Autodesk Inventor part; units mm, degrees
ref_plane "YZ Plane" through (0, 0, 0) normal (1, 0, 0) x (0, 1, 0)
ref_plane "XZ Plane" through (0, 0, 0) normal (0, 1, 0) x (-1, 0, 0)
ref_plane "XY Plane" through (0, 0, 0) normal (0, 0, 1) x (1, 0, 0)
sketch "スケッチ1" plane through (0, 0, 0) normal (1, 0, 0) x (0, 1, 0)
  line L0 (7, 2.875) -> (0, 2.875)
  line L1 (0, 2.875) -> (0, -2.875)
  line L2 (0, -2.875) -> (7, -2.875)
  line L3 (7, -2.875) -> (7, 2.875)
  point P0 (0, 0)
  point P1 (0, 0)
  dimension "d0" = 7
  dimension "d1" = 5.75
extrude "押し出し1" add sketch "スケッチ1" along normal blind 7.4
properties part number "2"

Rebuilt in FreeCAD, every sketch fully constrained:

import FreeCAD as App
import Part
import Sketcher
from FreeCAD import Vector


def add_polygon(sketch, points):
    """Adds a closed chain of lines whose ends are joined by coincident constraints."""
    first, n = sketch.GeometryCount, len(points)
    for a, b in zip(points, points[1:] + points[:1]):
        sketch.addGeometry(Part.LineSegment(App.Vector(*a, 0), App.Vector(*b, 0)), False)
    for i in range(n):
        sketch.addConstraint(Sketcher.Constraint("Coincident", first + i, 2, first + (i + 1) % n, 1))

doc = App.newDocument("Part")
body = doc.addObject("PartDesign::Body", "Body")

# Sketch on YZ plane
sketch1 = body.newObject("Sketcher::SketchObject", "Sketch")
sketch1.AttachmentSupport = (doc.getObject("YZ_Plane"), [""])
sketch1.MapMode = "FlatFace"
add_polygon(sketch1, [(7, -3), (7, 3), (0, 3), (0, -3)])  # lines 0-3
sketch1.addConstraint([
    Sketcher.Constraint("Vertical", 0),
    Sketcher.Constraint("Horizontal", 1),
    Sketcher.Constraint("Vertical", 2),
    Sketcher.Constraint("Horizontal", 3),
    Sketcher.Constraint("Symmetric", 1, 2, 2, 2, -1, 1),
    Sketcher.Constraint("DistanceX", 1, 2, 1, 1, 7.0),
    Sketcher.Constraint("DistanceY", 0, 1, 0, 2, 5.75),
])
pad1 = body.newObject("PartDesign::Pad", "Pad")
pad1.Profile = sketch1
pad1.Length = 7.4

doc.recompute()
